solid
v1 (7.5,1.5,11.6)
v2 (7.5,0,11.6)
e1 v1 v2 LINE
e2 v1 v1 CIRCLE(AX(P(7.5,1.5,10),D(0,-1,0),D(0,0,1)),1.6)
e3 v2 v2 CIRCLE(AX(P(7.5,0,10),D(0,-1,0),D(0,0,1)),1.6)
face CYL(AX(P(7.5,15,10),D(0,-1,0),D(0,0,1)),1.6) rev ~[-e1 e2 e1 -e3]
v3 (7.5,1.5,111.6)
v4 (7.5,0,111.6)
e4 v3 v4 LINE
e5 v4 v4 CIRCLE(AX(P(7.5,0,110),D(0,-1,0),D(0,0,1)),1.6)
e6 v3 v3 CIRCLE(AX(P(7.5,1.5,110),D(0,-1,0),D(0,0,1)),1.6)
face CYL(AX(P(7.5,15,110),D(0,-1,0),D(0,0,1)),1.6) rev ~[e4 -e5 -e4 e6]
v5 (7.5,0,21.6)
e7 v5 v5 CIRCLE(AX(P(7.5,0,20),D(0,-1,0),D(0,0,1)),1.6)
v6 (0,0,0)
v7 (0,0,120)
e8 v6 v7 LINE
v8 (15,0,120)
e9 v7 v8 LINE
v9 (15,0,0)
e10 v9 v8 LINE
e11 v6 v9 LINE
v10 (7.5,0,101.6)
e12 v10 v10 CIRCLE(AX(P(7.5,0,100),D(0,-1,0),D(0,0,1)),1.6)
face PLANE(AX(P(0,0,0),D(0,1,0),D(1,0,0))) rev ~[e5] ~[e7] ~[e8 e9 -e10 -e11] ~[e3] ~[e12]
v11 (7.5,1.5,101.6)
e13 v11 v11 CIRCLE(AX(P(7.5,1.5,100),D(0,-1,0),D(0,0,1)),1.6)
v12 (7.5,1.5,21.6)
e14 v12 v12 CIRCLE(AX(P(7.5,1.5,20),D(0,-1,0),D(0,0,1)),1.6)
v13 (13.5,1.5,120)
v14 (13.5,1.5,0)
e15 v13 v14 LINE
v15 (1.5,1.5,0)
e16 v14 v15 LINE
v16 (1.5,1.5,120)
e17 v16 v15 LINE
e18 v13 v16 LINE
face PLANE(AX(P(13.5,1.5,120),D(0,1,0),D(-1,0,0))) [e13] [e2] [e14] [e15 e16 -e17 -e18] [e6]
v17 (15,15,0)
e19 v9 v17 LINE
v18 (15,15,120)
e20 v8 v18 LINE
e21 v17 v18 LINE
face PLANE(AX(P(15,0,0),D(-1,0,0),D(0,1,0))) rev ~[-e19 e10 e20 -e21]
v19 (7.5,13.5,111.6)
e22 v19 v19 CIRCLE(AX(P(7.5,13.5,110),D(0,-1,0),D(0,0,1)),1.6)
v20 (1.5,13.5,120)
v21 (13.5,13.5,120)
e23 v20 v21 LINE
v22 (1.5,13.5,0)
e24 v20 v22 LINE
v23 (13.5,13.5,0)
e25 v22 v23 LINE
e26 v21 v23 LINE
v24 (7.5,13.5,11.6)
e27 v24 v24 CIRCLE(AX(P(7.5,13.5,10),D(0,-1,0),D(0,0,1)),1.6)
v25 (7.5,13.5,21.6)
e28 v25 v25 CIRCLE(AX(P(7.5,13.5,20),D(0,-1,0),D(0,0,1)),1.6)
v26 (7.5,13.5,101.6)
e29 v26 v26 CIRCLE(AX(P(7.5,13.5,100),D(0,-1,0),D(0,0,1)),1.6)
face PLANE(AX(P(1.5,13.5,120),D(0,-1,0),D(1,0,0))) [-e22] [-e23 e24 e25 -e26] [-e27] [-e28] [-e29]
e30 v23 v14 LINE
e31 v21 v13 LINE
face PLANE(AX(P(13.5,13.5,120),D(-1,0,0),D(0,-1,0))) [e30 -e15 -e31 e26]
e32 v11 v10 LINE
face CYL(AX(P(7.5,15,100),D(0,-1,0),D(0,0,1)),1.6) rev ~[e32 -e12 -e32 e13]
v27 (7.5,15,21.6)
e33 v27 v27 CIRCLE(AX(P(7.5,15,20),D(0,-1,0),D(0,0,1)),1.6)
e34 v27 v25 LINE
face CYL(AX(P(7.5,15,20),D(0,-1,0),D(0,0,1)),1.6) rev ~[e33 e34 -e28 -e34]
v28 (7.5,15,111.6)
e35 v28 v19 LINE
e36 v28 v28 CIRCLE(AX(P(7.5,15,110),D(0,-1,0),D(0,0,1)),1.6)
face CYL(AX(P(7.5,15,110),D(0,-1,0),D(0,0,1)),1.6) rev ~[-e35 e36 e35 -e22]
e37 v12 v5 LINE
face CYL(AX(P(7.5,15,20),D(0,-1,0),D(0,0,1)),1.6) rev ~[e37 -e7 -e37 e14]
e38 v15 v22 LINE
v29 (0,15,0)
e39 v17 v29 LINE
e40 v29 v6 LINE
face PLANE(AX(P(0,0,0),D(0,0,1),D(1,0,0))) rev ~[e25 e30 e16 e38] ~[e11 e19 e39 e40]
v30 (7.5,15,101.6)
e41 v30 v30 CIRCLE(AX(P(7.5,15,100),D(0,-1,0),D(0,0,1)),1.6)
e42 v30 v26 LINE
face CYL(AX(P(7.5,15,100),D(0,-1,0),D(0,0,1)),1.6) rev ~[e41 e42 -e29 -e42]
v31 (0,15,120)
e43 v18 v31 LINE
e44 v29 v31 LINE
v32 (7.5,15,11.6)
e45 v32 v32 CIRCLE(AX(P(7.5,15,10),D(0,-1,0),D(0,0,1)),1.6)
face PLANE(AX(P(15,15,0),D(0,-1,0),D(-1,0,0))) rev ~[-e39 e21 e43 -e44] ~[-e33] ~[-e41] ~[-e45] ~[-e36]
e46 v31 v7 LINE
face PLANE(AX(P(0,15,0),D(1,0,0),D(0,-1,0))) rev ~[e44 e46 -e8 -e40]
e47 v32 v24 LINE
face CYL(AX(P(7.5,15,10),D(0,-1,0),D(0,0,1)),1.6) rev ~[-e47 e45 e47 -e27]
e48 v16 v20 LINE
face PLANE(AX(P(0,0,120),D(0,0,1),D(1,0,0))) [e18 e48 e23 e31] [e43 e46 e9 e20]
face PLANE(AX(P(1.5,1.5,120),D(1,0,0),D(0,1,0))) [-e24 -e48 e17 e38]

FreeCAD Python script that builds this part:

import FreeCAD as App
import Part
import Sketcher
Q = App.Units.Quantity

doc = App.newDocument("Part")
body = doc.addObject("PartDesign::Body", "Body")

sketch1 = body.newObject("Sketcher::SketchObject", "Sketch")
sketch1.AttachmentSupport = (doc.getObject("XY_Plane"), [""])
sketch1.MapMode = "FlatFace"
sketch1.addGeometry(Part.LineSegment(App.Vector(0, 15, 0), App.Vector(0, 0, 0)), False)
sketch1.addGeometry(Part.LineSegment(App.Vector(0, 0, 0), App.Vector(15, 0, 0)), False)
sketch1.addGeometry(Part.LineSegment(App.Vector(15, 0, 0), App.Vector(15, 15, 0)), False)
sketch1.addGeometry(Part.LineSegment(App.Vector(15, 15, 0), App.Vector(0, 15, 0)), False)
sketch1.addConstraint(Sketcher.Constraint("Coincident", 0, 2, 1, 1))
sketch1.addConstraint(Sketcher.Constraint("Coincident", 1, 2, 2, 1))
sketch1.addConstraint(Sketcher.Constraint("Coincident", 2, 2, 3, 1))
sketch1.addConstraint(Sketcher.Constraint("Coincident", 3, 2, 0, 1))
sketch1.addConstraint(Sketcher.Constraint("Vertical", 0))
sketch1.addConstraint(Sketcher.Constraint("Horizontal", 1))
sketch1.addConstraint(Sketcher.Constraint("Vertical", 2))
sketch1.addConstraint(Sketcher.Constraint("Horizontal", 3))
sketch1.addConstraint(Sketcher.Constraint("Coincident", 0, 2, -1, 1))
sketch1.addConstraint(Sketcher.Constraint("Equal", 3, 0))
sketch1.addConstraint(Sketcher.Constraint("DistanceX", 1, 1, 1, 2, Q("15 mm")))
pad1 = body.newObject("PartDesign::Pad", "Pad")
pad1.Profile = sketch1
pad1.Length = 120

sketch2 = body.newObject("Sketcher::SketchObject", "Sketch001")
sketch2.AttachmentSupport = (doc.getObject("XZ_Plane"), [""])
sketch2.MapMode = "FlatFace"
sketch2.AttachmentOffset = App.Placement(App.Vector(0, 0, -15), App.Rotation())
sketch2.addGeometry(Part.Circle(App.Vector(7.5, 10, 0), App.Vector(0, 0, 1), 1.6), False)
sketch2.addGeometry(Part.Circle(App.Vector(7.5, 20, 0), App.Vector(0, 0, 1), 1.6), False)
sketch2.addGeometry(Part.Circle(App.Vector(7.5, 110, 0), App.Vector(0, 0, 1), 1.6), False)
sketch2.addGeometry(Part.Circle(App.Vector(7.5, 100, 0), App.Vector(0, 0, 1), 1.6), False)
sketch2.addConstraint(Sketcher.Constraint("Equal", 0, 1))
sketch2.addConstraint(Sketcher.Constraint("Equal", 1, 2))
sketch2.addConstraint(Sketcher.Constraint("Equal", 2, 3))
sketch2.addConstraint(Sketcher.Constraint("Vertical", 0, 3, 1, 3))
sketch2.addConstraint(Sketcher.Constraint("Vertical", 1, 3, 2, 3))
sketch2.addConstraint(Sketcher.Constraint("Vertical", 2, 3, 3, 3))
sketch2.addConstraint(Sketcher.Constraint("Diameter", 0, Q("3.2 mm")))
sketch2.addConstraint(Sketcher.Constraint("DistanceY", -1, 1, 0, 3, Q("10 mm")))
sketch2.addConstraint(Sketcher.Constraint("DistanceY", -1, 1, 1, 3, Q("20 mm")))
sketch2.addConstraint(Sketcher.Constraint("DistanceY", -1, 1, 2, 3, Q("110 mm")))
sketch2.addConstraint(Sketcher.Constraint("DistanceY", -1, 1, 3, 3, Q("100 mm")))
sketch2.addConstraint(Sketcher.Constraint("DistanceX", -1, 1, 0, 3, Q("7.5 mm")))
doc.recompute()
hole = body.newObject("PartDesign::Hole", "Hole")
hole.Profile = sketch2
hole.ThreadType = "None"
hole.Diameter = 3.2
hole.DepthType = "ThroughAll"
hole.Reversed = True

sketch3 = body.newObject("Sketcher::SketchObject", "Sketch002")
sketch3.AttachmentSupport = (doc.getObject("XY_Plane"), [""])
sketch3.MapMode = "FlatFace"
sketch3.AttachmentOffset = App.Placement(App.Vector(0, 0, 120), App.Rotation())
sketch3.addGeometry(Part.LineSegment(App.Vector(13.5, 13.5, 0), App.Vector(1.5, 13.5, 0)), False)
sketch3.addGeometry(Part.LineSegment(App.Vector(1.5, 13.5, 0), App.Vector(1.5, 1.5, 0)), False)
sketch3.addGeometry(Part.LineSegment(App.Vector(1.5, 1.5, 0), App.Vector(13.5, 1.5, 0)), False)
sketch3.addGeometry(Part.LineSegment(App.Vector(13.5, 1.5, 0), App.Vector(13.5, 13.5, 0)), False)
sketch3.addConstraint(Sketcher.Constraint("Coincident", 0, 2, 1, 1))
sketch3.addConstraint(Sketcher.Constraint("Coincident", 1, 2, 2, 1))
sketch3.addConstraint(Sketcher.Constraint("Coincident", 2, 2, 3, 1))
sketch3.addConstraint(Sketcher.Constraint("Coincident", 3, 2, 0, 1))
sketch3.addConstraint(Sketcher.Constraint("Horizontal", 0))
sketch3.addConstraint(Sketcher.Constraint("Vertical", 1))
sketch3.addConstraint(Sketcher.Constraint("Horizontal", 2))
sketch3.addConstraint(Sketcher.Constraint("Vertical", 3))
sketch3.addConstraint(Sketcher.Constraint("Equal", 2, 1))
sketch3.addConstraint(Sketcher.Constraint("DistanceX", 0, 2, 0, 1, Q("12 mm")))
sketch3.addConstraint(Sketcher.Constraint("DistanceX", -1, 1, 0, 2, Q("1.5 mm")))
sketch3.addConstraint(Sketcher.Constraint("DistanceY", -1, 1, 1, 2, Q("1.5 mm")))
pocket1 = body.newObject("PartDesign::Pocket", "Pocket")
pocket1.Profile = sketch3
pocket1.Length = 200

doc.recompute()
